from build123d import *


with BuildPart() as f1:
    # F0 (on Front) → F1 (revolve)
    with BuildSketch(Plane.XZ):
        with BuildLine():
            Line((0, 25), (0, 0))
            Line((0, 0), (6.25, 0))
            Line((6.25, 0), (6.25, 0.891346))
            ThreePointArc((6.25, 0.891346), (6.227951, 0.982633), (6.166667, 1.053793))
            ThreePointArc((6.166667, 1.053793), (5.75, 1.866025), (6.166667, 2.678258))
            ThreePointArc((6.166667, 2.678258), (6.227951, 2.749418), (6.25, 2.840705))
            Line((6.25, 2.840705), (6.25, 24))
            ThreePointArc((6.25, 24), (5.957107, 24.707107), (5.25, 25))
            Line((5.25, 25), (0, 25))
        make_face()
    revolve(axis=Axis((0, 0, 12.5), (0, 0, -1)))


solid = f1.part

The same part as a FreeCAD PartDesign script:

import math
import FreeCAD as App
import Part
import Sketcher

V = App.Vector
Q = App.Units.Quantity

doc = App.newDocument("Part")
body = doc.addObject("PartDesign::Body", "Body")

sketch1 = body.newObject("Sketcher::SketchObject", "Sketch")
sketch1.AttachmentSupport = (doc.getObject("XZ_Plane"), [""])
sketch1.MapMode = "FlatFace"
sketch1.addGeometry([
    Part.LineSegment(V(0, 25, 0), V(0, 0, 0)),
    Part.LineSegment(V(0, 0, 0), V(6.25, 0, 0)),
    Part.LineSegment(V(6.25, 0, 0), V(6.25, 0.891346, 0)),
    Part.ArcOfCircle(Part.Circle(V(6.049995, 0.891344, 0), V(0, 0, 1), 0.200005), math.radians(0.000541), math.radians(54.313815)),
    Part.ArcOfCircle(Part.Circle(V(6.749999, 1.866025, 0), V(0, 0, 1), 0.999999), math.radians(125.685277), math.radians(234.314723)),
    Part.ArcOfCircle(Part.Circle(V(6.049995, 2.840707, 0), V(0, 0, 1), 0.200005), math.radians(-54.313815), math.radians(-0.000541)),
    Part.LineSegment(V(6.25, 2.840705, 0), V(6.25, 24, 0)),
    Part.ArcOfCircle(Part.Circle(V(5.250001, 24.000001, 0), V(0, 0, 1), 0.999999), math.radians(-0.000043), math.radians(90.000043)),
    Part.LineSegment(V(5.25, 25, 0), V(0, 25, 0)),
], False)
sketch1.addConstraint([
    Sketcher.Constraint("Coincident", 0, 2, 1, 1),
    Sketcher.Constraint("Coincident", 1, 2, 2, 1),
    Sketcher.Constraint("Coincident", 2, 2, 3, 1),
    Sketcher.Constraint("Coincident", 3, 2, 4, 2),
    Sketcher.Constraint("Coincident", 4, 1, 5, 1),
    Sketcher.Constraint("Coincident", 5, 2, 6, 1),
    Sketcher.Constraint("Tangent", 6, 2, 7, 1),
    Sketcher.Constraint("Tangent", 7, 2, 8, 1),
    Sketcher.Constraint("Coincident", 8, 2, 0, 1),
    Sketcher.Constraint("Vertical", 0),
    Sketcher.Constraint("Horizontal", 1),
    Sketcher.Constraint("Vertical", 2),
    Sketcher.Constraint("Vertical", 6),
    Sketcher.Constraint("Horizontal", 8),
    Sketcher.Constraint("Coincident", 0, 2, -1, 1),
    Sketcher.Constraint("Equal", 3, 5),
    Sketcher.Constraint("Equal", 4, 7),
    Sketcher.Constraint("Horizontal", 3, 3, 2, 2),
    Sketcher.Constraint("Vertical", 3, 3, 5, 3),
    Sketcher.Constraint("Vertical", 3, 2, 4, 1),
    Sketcher.Constraint("Radius", 4, Q("0.999999 mm")),
    Sketcher.Constraint("DistanceY", 0, 2, 0, 1, Q("25 mm")),
    Sketcher.Constraint("DistanceX", 1, 1, 1, 2, Q("6.25 mm")),
    Sketcher.Constraint("DistanceX", 7, 3, 4, 3, Q("1.499998 mm")),
    Sketcher.Constraint("Radius", 3, Q("0.200005 mm")),
    Sketcher.Constraint("DistanceY", 2, 1, 2, 2, Q("0.891346 mm")),
    Sketcher.Constraint("DistanceY", 6, 1, 6, 2, Q("21.159295 mm")),
    Sketcher.Constraint("DistanceY", -1, 1, 4, 1, Q("2.678258 mm")),
])
revolution = body.newObject("PartDesign::Revolution", "Revolution")
revolution.Profile = sketch1
revolution.ReferenceAxis = (sketch1, ["V_Axis"])
revolution.Angle = 360

doc.recompute()
